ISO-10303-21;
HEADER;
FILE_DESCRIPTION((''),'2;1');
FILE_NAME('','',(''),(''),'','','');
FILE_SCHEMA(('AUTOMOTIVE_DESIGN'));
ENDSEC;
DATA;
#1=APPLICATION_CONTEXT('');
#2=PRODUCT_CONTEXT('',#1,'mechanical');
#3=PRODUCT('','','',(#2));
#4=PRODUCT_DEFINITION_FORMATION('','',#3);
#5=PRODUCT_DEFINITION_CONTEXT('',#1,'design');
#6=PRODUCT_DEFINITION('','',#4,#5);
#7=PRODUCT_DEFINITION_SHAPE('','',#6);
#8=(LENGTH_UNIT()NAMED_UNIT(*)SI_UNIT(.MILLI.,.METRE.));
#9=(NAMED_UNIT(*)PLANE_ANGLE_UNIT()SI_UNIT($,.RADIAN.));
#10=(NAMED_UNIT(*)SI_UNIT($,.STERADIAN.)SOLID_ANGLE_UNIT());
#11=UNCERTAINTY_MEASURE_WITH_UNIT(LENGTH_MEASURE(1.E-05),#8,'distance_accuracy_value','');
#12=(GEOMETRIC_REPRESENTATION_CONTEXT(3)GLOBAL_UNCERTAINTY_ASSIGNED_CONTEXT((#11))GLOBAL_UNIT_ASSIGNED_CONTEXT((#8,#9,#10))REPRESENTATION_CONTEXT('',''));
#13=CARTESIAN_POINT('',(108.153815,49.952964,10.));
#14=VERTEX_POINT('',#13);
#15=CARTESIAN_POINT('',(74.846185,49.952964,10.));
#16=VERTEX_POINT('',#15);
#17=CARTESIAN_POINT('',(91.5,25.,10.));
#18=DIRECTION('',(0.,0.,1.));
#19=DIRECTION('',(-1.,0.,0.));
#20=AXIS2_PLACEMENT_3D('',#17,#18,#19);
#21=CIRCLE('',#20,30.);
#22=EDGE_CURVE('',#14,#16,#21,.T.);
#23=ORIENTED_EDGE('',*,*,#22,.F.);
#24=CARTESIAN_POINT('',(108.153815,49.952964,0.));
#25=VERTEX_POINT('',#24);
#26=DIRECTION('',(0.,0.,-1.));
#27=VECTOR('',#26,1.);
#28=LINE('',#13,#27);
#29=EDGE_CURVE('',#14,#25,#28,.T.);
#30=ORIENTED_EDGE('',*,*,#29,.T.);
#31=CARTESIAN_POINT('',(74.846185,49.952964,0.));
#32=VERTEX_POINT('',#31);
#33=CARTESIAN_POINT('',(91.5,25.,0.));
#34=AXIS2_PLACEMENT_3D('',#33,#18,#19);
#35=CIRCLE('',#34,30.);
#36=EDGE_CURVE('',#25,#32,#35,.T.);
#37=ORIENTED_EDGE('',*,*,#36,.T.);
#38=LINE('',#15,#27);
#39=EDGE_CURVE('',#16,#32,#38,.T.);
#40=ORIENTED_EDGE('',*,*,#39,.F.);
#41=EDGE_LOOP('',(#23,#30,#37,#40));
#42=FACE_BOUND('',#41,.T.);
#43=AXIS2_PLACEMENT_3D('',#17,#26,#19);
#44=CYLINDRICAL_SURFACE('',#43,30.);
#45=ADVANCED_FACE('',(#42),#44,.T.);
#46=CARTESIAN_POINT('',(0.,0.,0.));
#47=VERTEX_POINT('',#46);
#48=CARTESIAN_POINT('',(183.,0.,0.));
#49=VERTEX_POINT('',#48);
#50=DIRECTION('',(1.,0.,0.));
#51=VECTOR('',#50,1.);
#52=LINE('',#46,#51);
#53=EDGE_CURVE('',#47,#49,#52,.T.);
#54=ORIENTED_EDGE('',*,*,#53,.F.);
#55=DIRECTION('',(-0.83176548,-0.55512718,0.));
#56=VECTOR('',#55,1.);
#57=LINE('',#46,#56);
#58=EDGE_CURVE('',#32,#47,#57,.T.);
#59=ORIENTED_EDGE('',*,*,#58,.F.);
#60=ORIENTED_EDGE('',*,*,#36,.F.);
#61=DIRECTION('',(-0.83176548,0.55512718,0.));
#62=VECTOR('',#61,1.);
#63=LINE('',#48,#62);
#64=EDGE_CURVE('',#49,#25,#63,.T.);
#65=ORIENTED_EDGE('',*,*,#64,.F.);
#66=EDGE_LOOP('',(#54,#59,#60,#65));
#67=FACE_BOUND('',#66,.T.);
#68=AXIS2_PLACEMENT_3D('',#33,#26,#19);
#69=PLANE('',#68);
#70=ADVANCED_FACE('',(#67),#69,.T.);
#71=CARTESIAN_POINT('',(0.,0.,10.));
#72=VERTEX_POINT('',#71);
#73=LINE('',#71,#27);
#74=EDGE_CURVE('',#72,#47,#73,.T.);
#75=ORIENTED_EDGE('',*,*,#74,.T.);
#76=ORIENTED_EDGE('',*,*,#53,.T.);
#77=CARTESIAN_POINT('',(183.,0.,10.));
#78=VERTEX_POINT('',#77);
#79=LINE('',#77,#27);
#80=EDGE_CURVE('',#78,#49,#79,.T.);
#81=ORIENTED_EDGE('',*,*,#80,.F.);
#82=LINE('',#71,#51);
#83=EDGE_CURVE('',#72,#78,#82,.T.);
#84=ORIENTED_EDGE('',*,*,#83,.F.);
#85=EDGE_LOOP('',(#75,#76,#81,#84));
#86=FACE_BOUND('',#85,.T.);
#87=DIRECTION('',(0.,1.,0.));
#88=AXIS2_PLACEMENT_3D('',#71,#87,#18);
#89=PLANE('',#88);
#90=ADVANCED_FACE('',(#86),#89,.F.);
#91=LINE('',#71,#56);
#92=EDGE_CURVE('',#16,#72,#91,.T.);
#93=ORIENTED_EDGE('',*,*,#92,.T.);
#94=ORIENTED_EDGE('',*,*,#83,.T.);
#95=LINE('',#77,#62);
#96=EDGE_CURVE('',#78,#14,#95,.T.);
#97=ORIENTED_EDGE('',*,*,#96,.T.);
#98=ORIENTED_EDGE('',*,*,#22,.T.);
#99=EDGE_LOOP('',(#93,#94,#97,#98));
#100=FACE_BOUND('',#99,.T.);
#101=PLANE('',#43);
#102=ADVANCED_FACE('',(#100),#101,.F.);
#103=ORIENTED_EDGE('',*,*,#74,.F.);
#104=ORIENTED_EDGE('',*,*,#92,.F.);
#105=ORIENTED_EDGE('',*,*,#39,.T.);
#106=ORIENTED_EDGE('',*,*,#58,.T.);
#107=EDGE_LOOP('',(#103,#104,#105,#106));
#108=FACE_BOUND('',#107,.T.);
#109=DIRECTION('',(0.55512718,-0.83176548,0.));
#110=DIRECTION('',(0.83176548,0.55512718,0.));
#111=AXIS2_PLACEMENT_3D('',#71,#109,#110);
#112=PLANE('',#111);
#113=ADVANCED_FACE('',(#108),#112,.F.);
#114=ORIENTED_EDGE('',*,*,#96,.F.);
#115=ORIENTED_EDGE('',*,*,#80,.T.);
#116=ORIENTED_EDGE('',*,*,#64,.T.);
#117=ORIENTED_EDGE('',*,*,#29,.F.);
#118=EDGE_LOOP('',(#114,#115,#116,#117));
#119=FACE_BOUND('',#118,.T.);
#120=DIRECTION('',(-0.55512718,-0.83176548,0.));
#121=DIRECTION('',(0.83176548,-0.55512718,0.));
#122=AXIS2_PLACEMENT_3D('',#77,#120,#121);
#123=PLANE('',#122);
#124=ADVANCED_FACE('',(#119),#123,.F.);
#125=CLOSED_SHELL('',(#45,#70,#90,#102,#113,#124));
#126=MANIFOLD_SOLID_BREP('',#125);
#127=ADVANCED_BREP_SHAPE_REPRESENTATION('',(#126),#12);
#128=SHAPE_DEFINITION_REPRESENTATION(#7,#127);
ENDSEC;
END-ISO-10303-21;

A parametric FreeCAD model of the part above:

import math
import FreeCAD as App
import Part
import Sketcher
from FreeCAD import Vector

doc = App.newDocument("Part")
params = doc.addObject("Spreadsheet::Sheet", "Params")
for row, (alias, value) in enumerate([
    ("sketch1_radius", "30 mm"),
    ("sketch1_width", "183 mm"),
    ("pad1_length", "10 mm"),
], start=1):
    params.set(f"A{row}", alias)
    params.set(f"B{row}", "=" + value)
    params.setAlias(f"B{row}", alias)

body = doc.addObject("PartDesign::Body", "Body")

# Sketch on XY plane
sketch1 = body.newObject("Sketcher::SketchObject", "Sketch")
sketch1.AttachmentSupport = (doc.getObject("XY_Plane"), [""])
sketch1.MapMode = "FlatFace"
sketch1.addGeometry([
    Part.LineSegment(Vector(0, 0, 0), Vector(183, 0, 0)),
    Part.LineSegment(Vector(183, 0, 0), Vector(108, 50, 0)),
    Part.ArcOfCircle(Part.Circle(Vector(92, 25, 0), Vector(0, 0, 1), 30), math.radians(56), math.radians(124)),
    Part.LineSegment(Vector(75, 50, 0), Vector(0, 0, 0)),
], False)
sketch1.addConstraint([
    Sketcher.Constraint("Coincident", 0, 2, 1, 1),
    Sketcher.Constraint("Tangent", 1, 2, 2, 1),
    Sketcher.Constraint("Tangent", 2, 2, 3, 1),
    Sketcher.Constraint("Coincident", 3, 2, 0, 1),
    Sketcher.Constraint("Horizontal", 0),
    Sketcher.Constraint("Coincident", 3, 2, -1, 1),
    Sketcher.Constraint("Horizontal", 1, 2, 2, 2),
    Sketcher.Constraint("Radius", 2, 30.0),
    Sketcher.Constraint("DistanceX", 0, 1, 0, 2, 183.0),
    Sketcher.Constraint("DistanceY", -1, 1, 2, 3, 25.0),
])
sketch1.setExpression("Constraints[7]", "Params.sketch1_radius")
sketch1.setExpression("Constraints[8]", "Params.sketch1_width")
pad1 = body.newObject("PartDesign::Pad", "Pad")
pad1.Profile = sketch1
pad1.setExpression("Length", "Params.pad1_length")

doc.recompute()
